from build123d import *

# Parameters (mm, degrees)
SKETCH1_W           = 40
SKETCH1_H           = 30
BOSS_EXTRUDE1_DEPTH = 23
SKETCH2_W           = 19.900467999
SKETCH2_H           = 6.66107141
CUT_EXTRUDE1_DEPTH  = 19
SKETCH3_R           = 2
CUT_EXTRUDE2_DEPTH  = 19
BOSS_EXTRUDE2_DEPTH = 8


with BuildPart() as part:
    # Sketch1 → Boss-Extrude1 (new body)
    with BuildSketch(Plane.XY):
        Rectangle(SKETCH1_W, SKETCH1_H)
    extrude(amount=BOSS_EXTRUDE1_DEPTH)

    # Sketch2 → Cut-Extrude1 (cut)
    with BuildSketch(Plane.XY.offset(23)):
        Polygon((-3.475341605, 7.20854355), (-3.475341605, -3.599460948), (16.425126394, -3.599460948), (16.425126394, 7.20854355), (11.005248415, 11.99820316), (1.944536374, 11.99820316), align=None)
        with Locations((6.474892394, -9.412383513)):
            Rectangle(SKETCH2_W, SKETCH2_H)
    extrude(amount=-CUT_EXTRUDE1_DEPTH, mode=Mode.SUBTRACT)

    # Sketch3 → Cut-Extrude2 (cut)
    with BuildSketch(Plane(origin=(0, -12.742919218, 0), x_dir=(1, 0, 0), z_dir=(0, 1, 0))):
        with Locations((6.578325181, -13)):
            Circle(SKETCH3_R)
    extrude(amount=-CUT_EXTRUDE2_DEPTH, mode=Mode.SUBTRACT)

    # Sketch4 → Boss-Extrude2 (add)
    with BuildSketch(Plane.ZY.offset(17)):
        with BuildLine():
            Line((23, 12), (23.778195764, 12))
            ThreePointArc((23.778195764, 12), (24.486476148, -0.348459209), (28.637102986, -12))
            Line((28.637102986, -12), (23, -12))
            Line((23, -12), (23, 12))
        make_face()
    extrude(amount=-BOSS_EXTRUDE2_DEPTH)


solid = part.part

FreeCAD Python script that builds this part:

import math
import FreeCAD as App
import Part
import Sketcher
Q = App.Units.Quantity

doc = App.newDocument("Part")
body = doc.addObject("PartDesign::Body", "Body")

sketch1 = body.newObject("Sketcher::SketchObject", "Sketch")
sketch1.AttachmentSupport = (doc.getObject("XY_Plane"), [""])
sketch1.MapMode = "FlatFace"
sketch1.addGeometry([
    Part.LineSegment(App.Vector(-20, 15, 0), App.Vector(-20, -15, 0)),
    Part.LineSegment(App.Vector(-20, -15, 0), App.Vector(20, -15, 0)),
    Part.LineSegment(App.Vector(20, -15, 0), App.Vector(20, 15, 0)),
    Part.LineSegment(App.Vector(20, 15, 0), App.Vector(-20, 15, 0)),
], False)
sketch1.addConstraint([
    Sketcher.Constraint("Coincident", 0, 2, 1, 1),
    Sketcher.Constraint("Coincident", 1, 2, 2, 1),
    Sketcher.Constraint("Coincident", 2, 2, 3, 1),
    Sketcher.Constraint("Coincident", 3, 2, 0, 1),
    Sketcher.Constraint("Vertical", 0),
    Sketcher.Constraint("Horizontal", 1),
    Sketcher.Constraint("Vertical", 2),
    Sketcher.Constraint("Horizontal", 3),
    Sketcher.Constraint("Symmetric", 0, 2, 2, 2, -1, 1),
    Sketcher.Constraint("DistanceX", 1, 1, 1, 2, Q("40 mm")),
    Sketcher.Constraint("DistanceY", 0, 2, 0, 1, Q("30 mm")),
])
pad1 = body.newObject("PartDesign::Pad", "Pad")
pad1.Profile = sketch1
pad1.Length = 23

sketch2 = body.newObject("Sketcher::SketchObject", "Sketch001")
sketch2.AttachmentSupport = (doc.getObject("XY_Plane"), [""])
sketch2.MapMode = "FlatFace"
sketch2.AttachmentOffset = App.Placement(App.Vector(0, 0, 23), App.Rotation())
sketch2.addGeometry([
    Part.LineSegment(App.Vector(-3, 7, 0), App.Vector(-3, -4, 0)),
    Part.LineSegment(App.Vector(-3, -4, 0), App.Vector(16, -4, 0)),
    Part.LineSegment(App.Vector(16, -4, 0), App.Vector(16, 7, 0)),
    Part.LineSegment(App.Vector(16, 7, 0), App.Vector(11, 12, 0)),
    Part.LineSegment(App.Vector(11, 12, 0), App.Vector(2, 12, 0)),
    Part.LineSegment(App.Vector(2, 12, 0), App.Vector(-3, 7, 0)),
    Part.LineSegment(App.Vector(-3, -6, 0), App.Vector(-3, -13, 0)),
    Part.LineSegment(App.Vector(-3, -13, 0), App.Vector(16, -13, 0)),
    Part.LineSegment(App.Vector(16, -13, 0), App.Vector(16, -6, 0)),
    Part.LineSegment(App.Vector(16, -6, 0), App.Vector(-3, -6, 0)),
], False)
sketch2.addConstraint([
    Sketcher.Constraint("Coincident", 0, 2, 1, 1),
    Sketcher.Constraint("Coincident", 1, 2, 2, 1),
    Sketcher.Constraint("Coincident", 2, 2, 3, 1),
    Sketcher.Constraint("Coincident", 3, 2, 4, 1),
    Sketcher.Constraint("Coincident", 4, 2, 5, 1),
    Sketcher.Constraint("Coincident", 5, 2, 0, 1),
    Sketcher.Constraint("Coincident", 6, 2, 7, 1),
    Sketcher.Constraint("Coincident", 7, 2, 8, 1),
    Sketcher.Constraint("Coincident", 8, 2, 9, 1),
    Sketcher.Constraint("Coincident", 9, 2, 6, 1),
    Sketcher.Constraint("Vertical", 0),
    Sketcher.Constraint("Horizontal", 1),
    Sketcher.Constraint("Vertical", 2),
    Sketcher.Constraint("Horizontal", 4),
    Sketcher.Constraint("Vertical", 6),
    Sketcher.Constraint("Horizontal", 7),
    Sketcher.Constraint("Vertical", 8),
    Sketcher.Constraint("Horizontal", 9),
    Sketcher.Constraint("Horizontal", 2, 2, 5, 2),
    Sketcher.Constraint("Vertical", 5, 2, 6, 2),
    Sketcher.Constraint("Vertical", 2, 2, 7, 2),
    Sketcher.Constraint("Equal", 3, 5),
    Sketcher.Constraint("DistanceY", 6, 2, 6, 1, Q("6.661071 mm")),
    Sketcher.Constraint("DistanceX", 1, 1, 1, 2, Q("19.900468 mm")),
    Sketcher.Constraint("DistanceX", 4, 2, 4, 1, Q("9.060712 mm")),
    Sketcher.Constraint("DistanceY", 0, 2, 0, 1, Q("10.808004 mm")),
    Sketcher.Constraint("DistanceX", 0, 2, -1, 1, Q("3.475342 mm")),
    Sketcher.Constraint("DistanceY", 0, 2, -1, 1, Q("3.599461 mm")),
    Sketcher.Constraint("DistanceY", 6, 2, -1, 1, Q("12.742919 mm")),
    Sketcher.Constraint("DistanceY", 2, 2, 3, 2, Q("4.78966 mm")),
])
pocket1 = body.newObject("PartDesign::Pocket", "Pocket")
pocket1.Profile = sketch2
pocket1.Length = 19

sketch3 = body.newObject("Sketcher::SketchObject", "Sketch002")
sketch3.AttachmentSupport = (doc.getObject("XZ_Plane"), [""])
sketch3.MapMode = "FlatFace"
sketch3.AttachmentOffset = App.Placement(App.Vector(0, 0, 12.742919), App.Rotation())
sketch3.addGeometry(Part.Circle(App.Vector(6.6, 13, 0), App.Vector(0, 0, 1), 2), False)
sketch3.addConstraint([
    Sketcher.Constraint("Diameter", 0, Q("4 mm")),
    Sketcher.Constraint("DistanceY", -1, 1, 0, 3, Q("13 mm")),
    Sketcher.Constraint("DistanceX", -1, 1, 0, 3, Q("6.578325 mm")),
])
pocket2 = body.newObject("PartDesign::Pocket", "Pocket001")
pocket2.Profile = sketch3
pocket2.Length = 19
pocket2.Reversed = True

sketch4 = body.newObject("Sketcher::SketchObject", "Sketch003")
sketch4.AttachmentSupport = (doc.getObject("YZ_Plane"), [""])
sketch4.MapMode = "FlatFace"
sketch4.AttachmentOffset = App.Placement(App.Vector(0, 0, -17), App.Rotation())
sketch4.addGeometry([
    Part.LineSegment(App.Vector(12, 23.8, 0), App.Vector(12, 23, 0)),
    Part.LineSegment(App.Vector(12, 23, 0), App.Vector(-12, 23, 0)),
    Part.LineSegment(App.Vector(-12, 23, 0), App.Vector(-12, 28.6, 0)),
    Part.ArcOfCircle(Part.Circle(App.Vector(8.3, 67.2, 0), App.Vector(0, 0, 1), 43.6), math.radians(-118), math.radians(-85)),
], False)
sketch4.addConstraint([
    Sketcher.Constraint("Coincident", 0, 2, 1, 1),
    Sketcher.Constraint("Coincident", 1, 2, 2, 1),
    Sketcher.Constraint("Coincident", 2, 2, 3, 1),
    Sketcher.Constraint("Coincident", 3, 2, 0, 1),
    Sketcher.Constraint("Vertical", 0),
    Sketcher.Constraint("Horizontal", 1),
    Sketcher.Constraint("Vertical", 2),
    Sketcher.Constraint("DistanceX", 1, 2, 1, 1, Q("24 mm")),
    Sketcher.Constraint("DistanceX", -1, 1, 0, 2, Q("12 mm")),
    Sketcher.Constraint("DistanceY", -1, 1, 0, 2, Q("23 mm")),
    Sketcher.Constraint("Radius", 3, Q("43.558668 mm")),
    Sketcher.Constraint("DistanceY", 3, 2, 3, 3, Q("43.400798 mm")),
    Sketcher.Constraint("DistanceY", 0, 2, 0, 1, Q("0.778196 mm")),
])
pad2 = body.newObject("PartDesign::Pad", "Pad001")
pad2.Profile = sketch4
pad2.Length = 8

doc.recompute()
